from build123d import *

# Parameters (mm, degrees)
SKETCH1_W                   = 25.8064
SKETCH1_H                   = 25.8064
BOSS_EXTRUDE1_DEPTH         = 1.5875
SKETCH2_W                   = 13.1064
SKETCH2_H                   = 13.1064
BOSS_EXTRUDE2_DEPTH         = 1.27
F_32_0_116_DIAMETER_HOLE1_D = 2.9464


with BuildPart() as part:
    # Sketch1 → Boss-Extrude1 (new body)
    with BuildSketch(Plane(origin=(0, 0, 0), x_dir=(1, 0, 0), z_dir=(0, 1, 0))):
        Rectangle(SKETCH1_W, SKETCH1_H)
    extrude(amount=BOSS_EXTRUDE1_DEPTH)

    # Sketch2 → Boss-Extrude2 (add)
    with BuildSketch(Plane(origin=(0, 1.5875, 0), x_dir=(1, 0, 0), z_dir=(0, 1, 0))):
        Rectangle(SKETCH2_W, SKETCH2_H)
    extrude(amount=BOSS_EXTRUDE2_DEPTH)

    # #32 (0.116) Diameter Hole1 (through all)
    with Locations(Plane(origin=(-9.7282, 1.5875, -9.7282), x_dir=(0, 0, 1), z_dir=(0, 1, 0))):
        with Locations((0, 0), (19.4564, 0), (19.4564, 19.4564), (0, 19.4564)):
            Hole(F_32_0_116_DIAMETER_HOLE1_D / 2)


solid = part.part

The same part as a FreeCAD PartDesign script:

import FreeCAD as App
import Part
import Sketcher
from FreeCAD import Vector
Q = App.Units.Quantity


def add_polygon(sketch, points):
    """Adds a closed chain of lines whose ends are joined by coincident constraints."""
    first, n = sketch.GeometryCount, len(points)
    for a, b in zip(points, points[1:] + points[:1]):
        sketch.addGeometry(Part.LineSegment(App.Vector(*a, 0), App.Vector(*b, 0)), False)
    for i in range(n):
        sketch.addConstraint(Sketcher.Constraint("Coincident", first + i, 2, first + (i + 1) % n, 1))

doc = App.newDocument("Part")
params = doc.addObject("Spreadsheet::Sheet", "Params")
for row, (alias, value) in enumerate([
    ("sketch1_width", "1.016 in"),
    ("pad1_length", "0.0625 in"),
    ("sketch2_width", "0.516 in"),
    ("pad2_length", "0.05 in"),
    ("sketch3_diameter", "0.116 in"),
    ("hole_diameter", "0.116 in"),
], start=1):
    params.set(f"A{row}", alias)
    params.set(f"B{row}", "=" + value)
    params.setAlias(f"B{row}", alias)

body = doc.addObject("PartDesign::Body", "Body")

# Sketch on XZ plane
sketch1 = body.newObject("Sketcher::SketchObject", "Sketch")
sketch1.AttachmentSupport = (doc.getObject("XZ_Plane"), [""])
sketch1.MapMode = "FlatFace"
add_polygon(sketch1, [(-12.9032, -12.9032), (-12.9032, 12.9032), (12.9032, 12.9032), (12.9032, -12.9032)])  # lines 0-3
sketch1.addConstraint(Sketcher.Constraint("Vertical", 0))
sketch1.addConstraint(Sketcher.Constraint("Horizontal", 1))
sketch1.addConstraint(Sketcher.Constraint("Vertical", 2))
sketch1.addConstraint(Sketcher.Constraint("Horizontal", 3))
sketch1.addConstraint(Sketcher.Constraint("Symmetric", 0, 2, 2, 2, -1, 1))
sketch1.addConstraint(Sketcher.Constraint("Equal", 3, 0))
sketch1.addConstraint(Sketcher.Constraint("DistanceX", 1, 1, 1, 2, Q("1.016 in")))
sketch1.setExpression("Constraints[10]", "Params.sketch1_width")
pad1 = body.newObject("PartDesign::Pad", "Pad")
pad1.Profile = sketch1
pad1.setExpression("Length", "Params.pad1_length")
pad1.Reversed = True

# Sketch on XZ plane
sketch2 = body.newObject("Sketcher::SketchObject", "Sketch001")
sketch2.AttachmentSupport = (doc.getObject("XZ_Plane"), [""])
sketch2.MapMode = "FlatFace"
sketch2.AttachmentOffset = App.Placement(Vector(0, 0, -0.0625 * 25.4), App.Rotation())
add_polygon(sketch2, [(-6.5532, -6.5532), (-6.5532, 6.5532), (6.5532, 6.5532), (6.5532, -6.5532)])  # lines 0-3
sketch2.addConstraint(Sketcher.Constraint("Vertical", 0))
sketch2.addConstraint(Sketcher.Constraint("Horizontal", 1))
sketch2.addConstraint(Sketcher.Constraint("Vertical", 2))
sketch2.addConstraint(Sketcher.Constraint("Horizontal", 3))
sketch2.addConstraint(Sketcher.Constraint("Symmetric", 0, 2, 2, 2, -1, 1))
sketch2.addConstraint(Sketcher.Constraint("Equal", 3, 0))
sketch2.addConstraint(Sketcher.Constraint("DistanceX", 1, 1, 1, 2, Q("0.516 in")))
sketch2.setExpression("Constraints[10]", "Params.sketch2_width")
pad2 = body.newObject("PartDesign::Pad", "Pad001")
pad2.Profile = sketch2
pad2.setExpression("Length", "Params.pad2_length")
pad2.Reversed = True

# Sketch on XZ plane
sketch3 = body.newObject("Sketcher::SketchObject", "Sketch002")
sketch3.AttachmentSupport = (doc.getObject("XZ_Plane"), [""])
sketch3.MapMode = "FlatFace"
sketch3.AttachmentOffset = App.Placement(Vector(0, 0, -0.0625 * 25.4), App.Rotation())
sketch3.addGeometry(Part.Circle(Vector(-9.7282, -9.7282, 0), Vector(0, 0, 1), 1.4732), False)
sketch3.addGeometry(Part.Circle(Vector(-9.7282, 9.7282, 0), Vector(0, 0, 1), 1.4732), False)
sketch3.addGeometry(Part.Circle(Vector(9.7282, 9.7282, 0), Vector(0, 0, 1), 1.4732), False)
sketch3.addGeometry(Part.Circle(Vector(9.7282, -9.7282, 0), Vector(0, 0, 1), 1.4732), False)
sketch3.addConstraint(Sketcher.Constraint("Equal", 0, 1))
sketch3.addConstraint(Sketcher.Constraint("Equal", 1, 2))
sketch3.addConstraint(Sketcher.Constraint("Equal", 2, 3))
sketch3.addConstraint(Sketcher.Constraint("Symmetric", 0, 3, 2, 3, -1, 1))
sketch3.addConstraint(Sketcher.Constraint("Symmetric", 1, 3, 3, 3, -1, 1))
sketch3.addConstraint(Sketcher.Constraint("Symmetric", 1, 3, 2, 3, -2))
sketch3.addConstraint(Sketcher.Constraint("Diameter", 0, Q("0.116 in")))
sketch3.addConstraint(Sketcher.Constraint("DistanceX", 0, 3, -1, 1, Q("0.383 in")))
sketch3.addConstraint(Sketcher.Constraint("DistanceY", 0, 3, -1, 1, Q("0.383 in")))
sketch3.setExpression("Constraints[6]", "Params.sketch3_diameter")
doc.recompute()
hole = body.newObject("PartDesign::Hole", "Hole")
hole.Profile = sketch3
hole.ThreadType = "None"
hole.setExpression("Diameter", "Params.hole_diameter")
hole.DepthType = "ThroughAll"
hole.Reversed = True

doc.recompute()
